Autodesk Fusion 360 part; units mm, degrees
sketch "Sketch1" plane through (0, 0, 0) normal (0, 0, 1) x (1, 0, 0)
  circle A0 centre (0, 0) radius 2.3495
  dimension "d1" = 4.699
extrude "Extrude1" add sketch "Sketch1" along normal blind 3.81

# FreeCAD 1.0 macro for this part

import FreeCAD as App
import Part
import Sketcher
from FreeCAD import Vector
Q = App.Units.Quantity

doc = App.newDocument("Part")
body = doc.addObject("PartDesign::Body", "Body")

# Sketch on XY plane
sketch1 = body.newObject("Sketcher::SketchObject", "Sketch")
sketch1.AttachmentSupport = (doc.getObject("XY_Plane"), [""])
sketch1.MapMode = "FlatFace"
sketch1.addGeometry(Part.Circle(Vector(0, 0, 0), Vector(0, 0, 1), 2.3), False)
sketch1.addConstraint([
    Sketcher.Constraint("Coincident", 0, 3, -1, 1),
    Sketcher.Constraint("Diameter", 0, Q("0.185 in")),
])
pad1 = body.newObject("PartDesign::Pad", "Pad")
pad1.Profile = sketch1
pad1.Length = Q("0.15 in")

doc.recompute()
